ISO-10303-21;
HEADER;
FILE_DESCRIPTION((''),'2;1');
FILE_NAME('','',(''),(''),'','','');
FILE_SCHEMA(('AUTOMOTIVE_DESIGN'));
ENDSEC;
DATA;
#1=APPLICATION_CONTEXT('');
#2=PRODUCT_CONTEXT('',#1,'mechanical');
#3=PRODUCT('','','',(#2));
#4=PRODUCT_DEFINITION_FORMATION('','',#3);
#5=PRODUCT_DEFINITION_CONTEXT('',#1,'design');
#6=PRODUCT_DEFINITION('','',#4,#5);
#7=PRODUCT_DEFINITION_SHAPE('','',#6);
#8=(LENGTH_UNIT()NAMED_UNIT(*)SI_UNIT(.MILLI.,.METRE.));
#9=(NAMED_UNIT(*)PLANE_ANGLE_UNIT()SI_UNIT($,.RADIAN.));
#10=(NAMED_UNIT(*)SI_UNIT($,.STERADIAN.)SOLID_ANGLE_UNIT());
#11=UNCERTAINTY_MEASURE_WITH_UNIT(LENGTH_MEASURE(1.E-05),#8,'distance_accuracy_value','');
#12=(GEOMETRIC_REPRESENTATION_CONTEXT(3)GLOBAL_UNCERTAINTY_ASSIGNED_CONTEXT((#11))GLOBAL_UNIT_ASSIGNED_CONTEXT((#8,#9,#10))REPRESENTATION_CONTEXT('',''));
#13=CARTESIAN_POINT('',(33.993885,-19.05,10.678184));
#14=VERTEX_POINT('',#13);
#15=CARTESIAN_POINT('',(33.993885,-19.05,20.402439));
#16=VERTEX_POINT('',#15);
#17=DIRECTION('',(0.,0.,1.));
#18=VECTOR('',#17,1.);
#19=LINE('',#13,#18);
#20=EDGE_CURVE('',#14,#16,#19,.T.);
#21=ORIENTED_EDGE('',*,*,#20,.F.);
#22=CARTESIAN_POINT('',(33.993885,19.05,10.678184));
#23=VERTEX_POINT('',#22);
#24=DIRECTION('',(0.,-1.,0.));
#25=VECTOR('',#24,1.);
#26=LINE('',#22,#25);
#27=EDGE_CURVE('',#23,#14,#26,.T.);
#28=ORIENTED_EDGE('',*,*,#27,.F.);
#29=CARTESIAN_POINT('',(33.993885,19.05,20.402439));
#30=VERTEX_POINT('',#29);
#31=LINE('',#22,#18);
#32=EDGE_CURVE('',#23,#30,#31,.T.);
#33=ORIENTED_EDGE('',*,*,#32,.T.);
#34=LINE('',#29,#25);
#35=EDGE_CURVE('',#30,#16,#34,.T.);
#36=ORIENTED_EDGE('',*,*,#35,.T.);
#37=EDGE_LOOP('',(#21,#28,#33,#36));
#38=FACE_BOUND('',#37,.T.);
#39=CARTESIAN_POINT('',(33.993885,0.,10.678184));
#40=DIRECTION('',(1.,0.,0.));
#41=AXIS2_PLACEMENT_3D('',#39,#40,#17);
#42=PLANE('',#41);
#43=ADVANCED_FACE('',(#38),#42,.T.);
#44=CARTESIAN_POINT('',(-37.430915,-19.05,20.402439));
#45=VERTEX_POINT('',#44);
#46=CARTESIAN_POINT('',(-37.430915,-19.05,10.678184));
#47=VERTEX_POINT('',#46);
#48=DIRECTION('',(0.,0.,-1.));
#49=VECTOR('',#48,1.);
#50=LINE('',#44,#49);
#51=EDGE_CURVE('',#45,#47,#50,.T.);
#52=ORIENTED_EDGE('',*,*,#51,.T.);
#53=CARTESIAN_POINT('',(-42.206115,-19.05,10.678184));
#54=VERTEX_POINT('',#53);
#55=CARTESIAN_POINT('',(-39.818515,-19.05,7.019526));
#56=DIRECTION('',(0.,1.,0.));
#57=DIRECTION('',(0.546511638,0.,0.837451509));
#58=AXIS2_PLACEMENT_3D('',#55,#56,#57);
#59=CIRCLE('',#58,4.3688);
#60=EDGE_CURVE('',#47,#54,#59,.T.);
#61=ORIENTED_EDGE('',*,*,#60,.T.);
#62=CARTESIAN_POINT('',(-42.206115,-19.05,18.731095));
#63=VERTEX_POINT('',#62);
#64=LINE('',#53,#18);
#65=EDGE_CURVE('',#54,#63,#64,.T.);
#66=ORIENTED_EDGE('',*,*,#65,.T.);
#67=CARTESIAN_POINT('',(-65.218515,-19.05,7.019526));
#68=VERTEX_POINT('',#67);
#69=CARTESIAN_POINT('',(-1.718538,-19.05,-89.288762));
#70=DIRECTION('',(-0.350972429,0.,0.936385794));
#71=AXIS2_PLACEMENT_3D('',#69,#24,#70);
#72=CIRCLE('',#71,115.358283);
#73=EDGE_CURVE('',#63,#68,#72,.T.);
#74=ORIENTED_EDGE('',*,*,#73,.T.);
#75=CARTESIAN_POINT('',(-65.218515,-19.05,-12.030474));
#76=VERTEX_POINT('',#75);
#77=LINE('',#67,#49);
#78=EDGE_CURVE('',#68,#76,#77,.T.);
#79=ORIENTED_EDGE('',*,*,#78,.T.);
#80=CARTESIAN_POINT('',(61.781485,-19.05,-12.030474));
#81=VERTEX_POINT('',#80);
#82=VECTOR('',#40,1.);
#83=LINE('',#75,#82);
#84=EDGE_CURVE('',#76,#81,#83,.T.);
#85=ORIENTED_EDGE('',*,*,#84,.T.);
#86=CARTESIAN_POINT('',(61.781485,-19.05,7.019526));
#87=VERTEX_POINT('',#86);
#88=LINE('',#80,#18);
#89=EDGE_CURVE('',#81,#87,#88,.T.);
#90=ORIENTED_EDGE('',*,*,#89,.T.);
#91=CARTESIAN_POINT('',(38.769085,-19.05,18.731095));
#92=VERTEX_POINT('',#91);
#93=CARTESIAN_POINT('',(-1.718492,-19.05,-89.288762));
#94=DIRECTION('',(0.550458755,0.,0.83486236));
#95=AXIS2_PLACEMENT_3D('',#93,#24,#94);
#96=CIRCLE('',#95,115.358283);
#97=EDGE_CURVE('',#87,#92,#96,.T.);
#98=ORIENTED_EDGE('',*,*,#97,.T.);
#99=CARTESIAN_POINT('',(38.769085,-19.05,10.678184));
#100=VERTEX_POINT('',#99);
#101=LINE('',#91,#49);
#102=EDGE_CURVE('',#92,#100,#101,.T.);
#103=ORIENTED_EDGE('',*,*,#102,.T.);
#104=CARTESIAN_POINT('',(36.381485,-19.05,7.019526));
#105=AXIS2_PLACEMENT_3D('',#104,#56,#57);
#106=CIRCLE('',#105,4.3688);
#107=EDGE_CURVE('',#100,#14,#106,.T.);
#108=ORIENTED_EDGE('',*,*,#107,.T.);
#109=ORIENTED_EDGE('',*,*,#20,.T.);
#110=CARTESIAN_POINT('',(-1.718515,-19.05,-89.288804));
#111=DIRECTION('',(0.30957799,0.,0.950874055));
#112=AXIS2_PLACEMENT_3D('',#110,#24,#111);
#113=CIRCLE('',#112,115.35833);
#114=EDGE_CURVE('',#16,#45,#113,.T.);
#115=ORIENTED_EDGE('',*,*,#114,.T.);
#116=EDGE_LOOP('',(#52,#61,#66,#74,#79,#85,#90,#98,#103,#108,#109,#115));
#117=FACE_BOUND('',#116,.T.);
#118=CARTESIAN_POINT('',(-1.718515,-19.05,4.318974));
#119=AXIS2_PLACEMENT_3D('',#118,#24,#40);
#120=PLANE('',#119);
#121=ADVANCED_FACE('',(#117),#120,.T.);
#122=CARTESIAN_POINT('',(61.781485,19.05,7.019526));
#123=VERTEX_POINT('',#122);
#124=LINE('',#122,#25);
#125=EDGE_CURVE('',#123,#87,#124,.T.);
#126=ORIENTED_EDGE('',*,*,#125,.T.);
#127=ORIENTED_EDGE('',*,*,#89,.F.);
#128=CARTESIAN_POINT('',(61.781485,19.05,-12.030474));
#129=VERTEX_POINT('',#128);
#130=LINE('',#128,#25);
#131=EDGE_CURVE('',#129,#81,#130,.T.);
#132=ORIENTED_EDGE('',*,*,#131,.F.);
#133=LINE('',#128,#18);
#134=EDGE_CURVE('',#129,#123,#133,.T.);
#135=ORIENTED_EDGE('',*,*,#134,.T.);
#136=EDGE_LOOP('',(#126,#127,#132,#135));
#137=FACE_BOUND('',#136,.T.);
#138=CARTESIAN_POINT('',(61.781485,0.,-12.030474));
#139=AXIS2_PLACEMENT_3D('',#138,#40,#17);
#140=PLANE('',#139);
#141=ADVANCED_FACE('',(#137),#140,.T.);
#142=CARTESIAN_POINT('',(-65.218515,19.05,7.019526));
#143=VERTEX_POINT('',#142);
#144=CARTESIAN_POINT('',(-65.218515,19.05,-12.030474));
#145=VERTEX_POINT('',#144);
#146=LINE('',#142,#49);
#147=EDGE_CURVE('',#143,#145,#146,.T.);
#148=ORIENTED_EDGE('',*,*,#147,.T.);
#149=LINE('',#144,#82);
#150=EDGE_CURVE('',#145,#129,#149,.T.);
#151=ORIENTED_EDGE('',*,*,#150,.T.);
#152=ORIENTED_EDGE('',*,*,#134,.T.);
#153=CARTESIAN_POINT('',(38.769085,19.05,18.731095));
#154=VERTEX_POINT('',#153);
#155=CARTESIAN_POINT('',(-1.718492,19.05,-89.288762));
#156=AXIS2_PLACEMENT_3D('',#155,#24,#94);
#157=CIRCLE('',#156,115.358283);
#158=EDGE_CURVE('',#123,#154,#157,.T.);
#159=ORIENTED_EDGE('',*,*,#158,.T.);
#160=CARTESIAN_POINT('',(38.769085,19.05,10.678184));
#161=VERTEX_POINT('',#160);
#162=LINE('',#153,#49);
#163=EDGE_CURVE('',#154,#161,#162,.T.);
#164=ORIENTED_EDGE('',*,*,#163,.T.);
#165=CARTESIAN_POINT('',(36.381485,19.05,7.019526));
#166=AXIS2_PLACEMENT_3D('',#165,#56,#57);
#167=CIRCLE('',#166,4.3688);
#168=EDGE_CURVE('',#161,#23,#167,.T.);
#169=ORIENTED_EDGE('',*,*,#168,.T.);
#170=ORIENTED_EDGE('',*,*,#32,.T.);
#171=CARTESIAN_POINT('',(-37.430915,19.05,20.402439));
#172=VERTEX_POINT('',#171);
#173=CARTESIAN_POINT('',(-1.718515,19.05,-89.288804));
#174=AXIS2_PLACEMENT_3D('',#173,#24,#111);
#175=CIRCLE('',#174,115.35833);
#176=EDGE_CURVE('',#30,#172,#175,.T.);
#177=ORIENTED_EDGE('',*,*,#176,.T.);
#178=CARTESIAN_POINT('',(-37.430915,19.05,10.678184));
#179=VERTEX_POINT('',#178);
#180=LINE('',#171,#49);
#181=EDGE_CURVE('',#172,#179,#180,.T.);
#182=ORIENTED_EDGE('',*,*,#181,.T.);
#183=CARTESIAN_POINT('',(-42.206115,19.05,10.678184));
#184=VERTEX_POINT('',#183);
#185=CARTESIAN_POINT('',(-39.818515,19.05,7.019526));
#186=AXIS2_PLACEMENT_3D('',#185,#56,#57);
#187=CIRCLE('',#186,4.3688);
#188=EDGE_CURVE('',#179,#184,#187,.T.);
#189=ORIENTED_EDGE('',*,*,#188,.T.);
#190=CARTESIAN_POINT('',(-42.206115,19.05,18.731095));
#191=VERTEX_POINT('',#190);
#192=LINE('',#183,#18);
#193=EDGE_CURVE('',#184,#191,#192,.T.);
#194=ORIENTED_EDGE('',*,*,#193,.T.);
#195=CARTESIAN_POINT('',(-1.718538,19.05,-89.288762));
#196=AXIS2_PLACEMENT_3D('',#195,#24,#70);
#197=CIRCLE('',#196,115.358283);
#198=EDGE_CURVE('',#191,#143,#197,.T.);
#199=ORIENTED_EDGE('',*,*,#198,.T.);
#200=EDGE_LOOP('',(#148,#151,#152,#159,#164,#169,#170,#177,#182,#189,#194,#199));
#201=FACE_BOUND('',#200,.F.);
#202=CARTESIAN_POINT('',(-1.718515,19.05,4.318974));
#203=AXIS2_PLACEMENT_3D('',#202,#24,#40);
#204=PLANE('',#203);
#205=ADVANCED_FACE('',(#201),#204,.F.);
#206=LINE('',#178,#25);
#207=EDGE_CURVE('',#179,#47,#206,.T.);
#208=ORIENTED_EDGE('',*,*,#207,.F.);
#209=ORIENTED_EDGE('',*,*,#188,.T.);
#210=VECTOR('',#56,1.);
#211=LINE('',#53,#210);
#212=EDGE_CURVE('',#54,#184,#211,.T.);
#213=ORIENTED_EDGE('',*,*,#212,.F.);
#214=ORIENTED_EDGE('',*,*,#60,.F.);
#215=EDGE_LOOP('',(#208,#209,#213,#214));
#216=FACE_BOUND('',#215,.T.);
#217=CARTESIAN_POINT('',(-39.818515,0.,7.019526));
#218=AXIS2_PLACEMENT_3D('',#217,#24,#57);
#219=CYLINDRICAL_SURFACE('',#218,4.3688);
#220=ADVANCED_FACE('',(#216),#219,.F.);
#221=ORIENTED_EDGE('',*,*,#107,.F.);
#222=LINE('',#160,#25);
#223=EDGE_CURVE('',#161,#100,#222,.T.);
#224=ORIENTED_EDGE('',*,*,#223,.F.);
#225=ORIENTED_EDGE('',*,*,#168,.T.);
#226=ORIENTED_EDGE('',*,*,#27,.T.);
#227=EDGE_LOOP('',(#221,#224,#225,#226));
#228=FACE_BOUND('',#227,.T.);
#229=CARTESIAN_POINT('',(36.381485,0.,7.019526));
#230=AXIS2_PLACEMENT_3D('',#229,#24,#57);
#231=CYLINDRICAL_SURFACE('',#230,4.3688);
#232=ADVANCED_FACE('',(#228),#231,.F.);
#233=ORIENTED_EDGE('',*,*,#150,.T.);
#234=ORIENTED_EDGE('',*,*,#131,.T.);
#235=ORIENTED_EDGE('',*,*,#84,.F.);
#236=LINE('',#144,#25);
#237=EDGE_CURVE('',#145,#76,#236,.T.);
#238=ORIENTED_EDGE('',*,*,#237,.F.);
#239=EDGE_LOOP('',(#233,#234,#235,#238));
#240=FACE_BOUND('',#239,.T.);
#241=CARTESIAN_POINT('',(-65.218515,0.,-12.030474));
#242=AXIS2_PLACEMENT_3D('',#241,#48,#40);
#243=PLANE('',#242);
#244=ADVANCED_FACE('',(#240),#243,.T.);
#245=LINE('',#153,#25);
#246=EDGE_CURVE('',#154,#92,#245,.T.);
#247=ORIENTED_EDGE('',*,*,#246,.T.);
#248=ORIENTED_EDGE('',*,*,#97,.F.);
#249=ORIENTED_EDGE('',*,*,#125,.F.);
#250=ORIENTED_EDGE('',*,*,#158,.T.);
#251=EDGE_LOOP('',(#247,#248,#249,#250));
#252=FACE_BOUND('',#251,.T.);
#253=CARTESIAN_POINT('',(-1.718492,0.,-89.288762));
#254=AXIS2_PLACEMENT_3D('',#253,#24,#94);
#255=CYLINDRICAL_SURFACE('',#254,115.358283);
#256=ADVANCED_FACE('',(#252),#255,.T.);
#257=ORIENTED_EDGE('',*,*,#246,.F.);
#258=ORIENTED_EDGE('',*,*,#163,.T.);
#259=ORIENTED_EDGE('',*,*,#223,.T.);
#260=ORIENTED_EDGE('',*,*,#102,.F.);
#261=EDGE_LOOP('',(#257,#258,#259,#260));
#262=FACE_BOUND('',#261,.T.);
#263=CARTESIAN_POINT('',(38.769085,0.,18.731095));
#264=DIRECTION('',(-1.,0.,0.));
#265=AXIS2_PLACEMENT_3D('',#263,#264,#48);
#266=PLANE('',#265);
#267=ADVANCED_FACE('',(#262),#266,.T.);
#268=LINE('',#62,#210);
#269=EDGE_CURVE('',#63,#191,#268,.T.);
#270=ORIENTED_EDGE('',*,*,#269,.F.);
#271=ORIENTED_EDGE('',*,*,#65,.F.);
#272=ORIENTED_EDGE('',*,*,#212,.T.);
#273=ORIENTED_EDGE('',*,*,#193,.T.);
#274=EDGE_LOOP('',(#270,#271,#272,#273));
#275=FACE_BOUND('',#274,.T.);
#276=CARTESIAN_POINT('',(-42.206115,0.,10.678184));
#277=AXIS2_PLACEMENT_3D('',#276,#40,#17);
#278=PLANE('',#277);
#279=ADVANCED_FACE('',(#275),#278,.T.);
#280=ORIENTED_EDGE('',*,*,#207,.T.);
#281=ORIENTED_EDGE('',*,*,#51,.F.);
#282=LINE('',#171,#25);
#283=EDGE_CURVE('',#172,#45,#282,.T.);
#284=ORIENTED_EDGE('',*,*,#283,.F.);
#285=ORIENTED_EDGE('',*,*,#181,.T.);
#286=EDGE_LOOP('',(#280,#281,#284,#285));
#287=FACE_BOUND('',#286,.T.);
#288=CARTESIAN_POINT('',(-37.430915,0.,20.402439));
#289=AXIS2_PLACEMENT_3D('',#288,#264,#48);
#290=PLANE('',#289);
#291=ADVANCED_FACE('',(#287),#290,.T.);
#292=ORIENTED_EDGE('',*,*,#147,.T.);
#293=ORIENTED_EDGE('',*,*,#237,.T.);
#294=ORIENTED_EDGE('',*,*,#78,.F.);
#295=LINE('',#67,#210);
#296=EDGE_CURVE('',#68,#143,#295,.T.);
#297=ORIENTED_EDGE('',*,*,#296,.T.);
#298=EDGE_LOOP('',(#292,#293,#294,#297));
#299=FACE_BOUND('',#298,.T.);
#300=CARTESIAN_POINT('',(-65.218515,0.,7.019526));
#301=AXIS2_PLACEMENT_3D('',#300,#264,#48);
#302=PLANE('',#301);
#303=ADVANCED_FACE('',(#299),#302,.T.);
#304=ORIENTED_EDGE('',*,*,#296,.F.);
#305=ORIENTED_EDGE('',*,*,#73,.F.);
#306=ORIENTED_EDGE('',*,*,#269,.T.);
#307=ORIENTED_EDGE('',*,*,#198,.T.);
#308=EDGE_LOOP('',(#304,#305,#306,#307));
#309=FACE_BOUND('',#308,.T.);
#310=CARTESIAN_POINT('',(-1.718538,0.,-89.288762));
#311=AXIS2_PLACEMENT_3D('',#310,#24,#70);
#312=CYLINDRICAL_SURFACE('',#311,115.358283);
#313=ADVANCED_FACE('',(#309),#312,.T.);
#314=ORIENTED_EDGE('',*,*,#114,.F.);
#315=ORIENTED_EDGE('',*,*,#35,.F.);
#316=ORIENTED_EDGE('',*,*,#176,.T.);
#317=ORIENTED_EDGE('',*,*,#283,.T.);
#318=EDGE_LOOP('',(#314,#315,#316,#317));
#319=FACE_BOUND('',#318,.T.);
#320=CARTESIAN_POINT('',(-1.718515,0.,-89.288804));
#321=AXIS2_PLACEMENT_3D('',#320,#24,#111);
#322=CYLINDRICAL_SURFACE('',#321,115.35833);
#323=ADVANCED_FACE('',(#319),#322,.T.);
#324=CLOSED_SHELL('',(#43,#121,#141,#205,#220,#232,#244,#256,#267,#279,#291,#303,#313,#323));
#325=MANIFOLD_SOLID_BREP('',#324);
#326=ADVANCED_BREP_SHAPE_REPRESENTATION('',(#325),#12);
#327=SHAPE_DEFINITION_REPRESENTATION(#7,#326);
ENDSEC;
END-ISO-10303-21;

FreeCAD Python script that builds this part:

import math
import FreeCAD as App
import Part
import Sketcher

V = App.Vector
Q = App.Units.Quantity

doc = App.newDocument("Part")
params = doc.addObject("Spreadsheet::Sheet", "Params")
for row, (alias, value) in enumerate([
    ("sketch1_width", "5 in"),
    ("sketch1_radius", "0.172 in"),
    ("sketch1_height", "0.75 in"),
    ("pad1_length", "1.5 in"),
], start=1):
    params.set(f"A{row}", alias)
    params.set(f"B{row}", "=" + value)
    params.setAlias(f"B{row}", alias)

body = doc.addObject("PartDesign::Body", "Body")

# Sketch on XZ plane
sketch1 = body.newObject("Sketcher::SketchObject", "Sketch")
sketch1.AttachmentSupport = (doc.getObject("XZ_Plane"), [""])
sketch1.MapMode = "FlatFace"
sketch1.addGeometry([
    Part.LineSegment(V(-65.2, 7, 0), V(-65.2, -12, 0)),  # 0
    Part.LineSegment(V(-65.2, -12, 0), V(61.8, -12, 0)),  # 1
    Part.LineSegment(V(61.8, -12, 0), V(61.8, 7, 0)),  # 2
    Part.ArcOfCircle(Part.Circle(V(-1.7, -89.3, 0), V(0, 0, 1), 115.4), math.radians(56.6), math.radians(69.45)),  # 3
    Part.LineSegment(V(38.8, 18.7, 0), V(38.8, 10.7, 0)),  # 4
    Part.ArcOfCircle(Part.Circle(V(36.4, 7, 0), V(0, 0, 1), 4.4), math.radians(123), math.radians(417)),  # 5
    Part.LineSegment(V(34, 10.7, 0), V(34, 20.4, 0)),  # 6
    Part.ArcOfCircle(Part.Circle(V(-1.7, -89.3, 0), V(0, 0, 1), 115.4), math.radians(72), math.radians(108)),  # 7
    Part.LineSegment(V(-37.4, 20.4, 0), V(-37.4, 10.7, 0)),  # 8
    Part.ArcOfCircle(Part.Circle(V(-39.8, 7, 0), V(0, 0, 1), 4.4), math.radians(123), math.radians(417)),  # 9
    Part.LineSegment(V(-42.2, 10.7, 0), V(-42.2, 18.7, 0)),  # 10
    Part.ArcOfCircle(Part.Circle(V(-1.7, -89.3, 0), V(0, 0, 1), 115.4), math.radians(110.55), math.radians(123.4)),  # 11
], False)
sketch1.addConstraint([
    Sketcher.Constraint("Coincident", 0, 2, 1, 1),
    Sketcher.Constraint("Coincident", 1, 2, 2, 1),
    Sketcher.Constraint("Coincident", 2, 2, 3, 1),
    Sketcher.Constraint("Coincident", 3, 2, 4, 1),
    Sketcher.Constraint("Coincident", 4, 2, 5, 2),
    Sketcher.Constraint("Coincident", 5, 1, 6, 1),
    Sketcher.Constraint("Coincident", 6, 2, 7, 1),
    Sketcher.Constraint("Coincident", 7, 2, 8, 1),
    Sketcher.Constraint("Coincident", 8, 2, 9, 2),
    Sketcher.Constraint("Coincident", 9, 1, 10, 1),
    Sketcher.Constraint("Coincident", 10, 2, 11, 1),
    Sketcher.Constraint("Coincident", 11, 2, 0, 1),
    Sketcher.Constraint("Vertical", 0),
    Sketcher.Constraint("Horizontal", 1),
    Sketcher.Constraint("Vertical", 2),
    Sketcher.Constraint("Vertical", 4),
    Sketcher.Constraint("Vertical", 6),
    Sketcher.Constraint("Vertical", 8),
    Sketcher.Constraint("Vertical", 10),
    Sketcher.Constraint("Equal", 5, 9),
    Sketcher.Constraint("Equal", 3, 11),
    Sketcher.Constraint("Horizontal", 5, 3, 9, 3),
    Sketcher.Constraint("Horizontal", 3, 3, 11, 3),
    Sketcher.Constraint("Horizontal", 9, 3, 2, 2),
    Sketcher.Constraint("Horizontal", 4, 2, 5, 1),
    Sketcher.Constraint("Horizontal", 6, 2, 7, 2),
    Sketcher.Constraint("Horizontal", 5, 1, 8, 2),
    Sketcher.Constraint("Horizontal", 8, 2, 9, 1),
    Sketcher.Constraint("Horizontal", 3, 2, 10, 2),
    Sketcher.Constraint("Horizontal", 2, 2, 11, 2),
    Sketcher.Constraint("DistanceX", 1, 1, 1, 2, Q("5 in")),
    Sketcher.Constraint("Radius", 5, Q("0.172 in")),
    Sketcher.Constraint("DistanceX", 9, 3, 5, 3, Q("3 in")),
    Sketcher.Constraint("DistanceY", 0, 2, 0, 1, Q("0.75 in")),
    Sketcher.Constraint("Radius", 7, Q("115.35833 mm")),
    Sketcher.Constraint("DistanceX", 5, 3, 3, 2, Q("0.094 in")),
    Sketcher.Constraint("Radius", 3, Q("115.358283 mm")),
    Sketcher.Constraint("DistanceY", 4, 2, 4, 1, Q("8.052911 mm")),
    Sketcher.Constraint("DistanceY", 6, 1, 6, 2, Q("9.724255 mm")),
    Sketcher.Constraint("DistanceX", 3, 3, -1, 1, Q("1.718492 mm")),
    Sketcher.Constraint("DistanceY", -1, 1, 6, 2, Q("20.402439 mm")),
])
sketch1.setExpression("Constraints[30]", "Params.sketch1_width")
sketch1.setExpression("Constraints[31]", "Params.sketch1_radius")
sketch1.setExpression("Constraints[33]", "Params.sketch1_height")
pad1 = body.newObject("PartDesign::Pad", "Pad")
pad1.Profile = sketch1
pad1.setExpression("Length", "Params.pad1_length")
pad1.Midplane = True

doc.recompute()
